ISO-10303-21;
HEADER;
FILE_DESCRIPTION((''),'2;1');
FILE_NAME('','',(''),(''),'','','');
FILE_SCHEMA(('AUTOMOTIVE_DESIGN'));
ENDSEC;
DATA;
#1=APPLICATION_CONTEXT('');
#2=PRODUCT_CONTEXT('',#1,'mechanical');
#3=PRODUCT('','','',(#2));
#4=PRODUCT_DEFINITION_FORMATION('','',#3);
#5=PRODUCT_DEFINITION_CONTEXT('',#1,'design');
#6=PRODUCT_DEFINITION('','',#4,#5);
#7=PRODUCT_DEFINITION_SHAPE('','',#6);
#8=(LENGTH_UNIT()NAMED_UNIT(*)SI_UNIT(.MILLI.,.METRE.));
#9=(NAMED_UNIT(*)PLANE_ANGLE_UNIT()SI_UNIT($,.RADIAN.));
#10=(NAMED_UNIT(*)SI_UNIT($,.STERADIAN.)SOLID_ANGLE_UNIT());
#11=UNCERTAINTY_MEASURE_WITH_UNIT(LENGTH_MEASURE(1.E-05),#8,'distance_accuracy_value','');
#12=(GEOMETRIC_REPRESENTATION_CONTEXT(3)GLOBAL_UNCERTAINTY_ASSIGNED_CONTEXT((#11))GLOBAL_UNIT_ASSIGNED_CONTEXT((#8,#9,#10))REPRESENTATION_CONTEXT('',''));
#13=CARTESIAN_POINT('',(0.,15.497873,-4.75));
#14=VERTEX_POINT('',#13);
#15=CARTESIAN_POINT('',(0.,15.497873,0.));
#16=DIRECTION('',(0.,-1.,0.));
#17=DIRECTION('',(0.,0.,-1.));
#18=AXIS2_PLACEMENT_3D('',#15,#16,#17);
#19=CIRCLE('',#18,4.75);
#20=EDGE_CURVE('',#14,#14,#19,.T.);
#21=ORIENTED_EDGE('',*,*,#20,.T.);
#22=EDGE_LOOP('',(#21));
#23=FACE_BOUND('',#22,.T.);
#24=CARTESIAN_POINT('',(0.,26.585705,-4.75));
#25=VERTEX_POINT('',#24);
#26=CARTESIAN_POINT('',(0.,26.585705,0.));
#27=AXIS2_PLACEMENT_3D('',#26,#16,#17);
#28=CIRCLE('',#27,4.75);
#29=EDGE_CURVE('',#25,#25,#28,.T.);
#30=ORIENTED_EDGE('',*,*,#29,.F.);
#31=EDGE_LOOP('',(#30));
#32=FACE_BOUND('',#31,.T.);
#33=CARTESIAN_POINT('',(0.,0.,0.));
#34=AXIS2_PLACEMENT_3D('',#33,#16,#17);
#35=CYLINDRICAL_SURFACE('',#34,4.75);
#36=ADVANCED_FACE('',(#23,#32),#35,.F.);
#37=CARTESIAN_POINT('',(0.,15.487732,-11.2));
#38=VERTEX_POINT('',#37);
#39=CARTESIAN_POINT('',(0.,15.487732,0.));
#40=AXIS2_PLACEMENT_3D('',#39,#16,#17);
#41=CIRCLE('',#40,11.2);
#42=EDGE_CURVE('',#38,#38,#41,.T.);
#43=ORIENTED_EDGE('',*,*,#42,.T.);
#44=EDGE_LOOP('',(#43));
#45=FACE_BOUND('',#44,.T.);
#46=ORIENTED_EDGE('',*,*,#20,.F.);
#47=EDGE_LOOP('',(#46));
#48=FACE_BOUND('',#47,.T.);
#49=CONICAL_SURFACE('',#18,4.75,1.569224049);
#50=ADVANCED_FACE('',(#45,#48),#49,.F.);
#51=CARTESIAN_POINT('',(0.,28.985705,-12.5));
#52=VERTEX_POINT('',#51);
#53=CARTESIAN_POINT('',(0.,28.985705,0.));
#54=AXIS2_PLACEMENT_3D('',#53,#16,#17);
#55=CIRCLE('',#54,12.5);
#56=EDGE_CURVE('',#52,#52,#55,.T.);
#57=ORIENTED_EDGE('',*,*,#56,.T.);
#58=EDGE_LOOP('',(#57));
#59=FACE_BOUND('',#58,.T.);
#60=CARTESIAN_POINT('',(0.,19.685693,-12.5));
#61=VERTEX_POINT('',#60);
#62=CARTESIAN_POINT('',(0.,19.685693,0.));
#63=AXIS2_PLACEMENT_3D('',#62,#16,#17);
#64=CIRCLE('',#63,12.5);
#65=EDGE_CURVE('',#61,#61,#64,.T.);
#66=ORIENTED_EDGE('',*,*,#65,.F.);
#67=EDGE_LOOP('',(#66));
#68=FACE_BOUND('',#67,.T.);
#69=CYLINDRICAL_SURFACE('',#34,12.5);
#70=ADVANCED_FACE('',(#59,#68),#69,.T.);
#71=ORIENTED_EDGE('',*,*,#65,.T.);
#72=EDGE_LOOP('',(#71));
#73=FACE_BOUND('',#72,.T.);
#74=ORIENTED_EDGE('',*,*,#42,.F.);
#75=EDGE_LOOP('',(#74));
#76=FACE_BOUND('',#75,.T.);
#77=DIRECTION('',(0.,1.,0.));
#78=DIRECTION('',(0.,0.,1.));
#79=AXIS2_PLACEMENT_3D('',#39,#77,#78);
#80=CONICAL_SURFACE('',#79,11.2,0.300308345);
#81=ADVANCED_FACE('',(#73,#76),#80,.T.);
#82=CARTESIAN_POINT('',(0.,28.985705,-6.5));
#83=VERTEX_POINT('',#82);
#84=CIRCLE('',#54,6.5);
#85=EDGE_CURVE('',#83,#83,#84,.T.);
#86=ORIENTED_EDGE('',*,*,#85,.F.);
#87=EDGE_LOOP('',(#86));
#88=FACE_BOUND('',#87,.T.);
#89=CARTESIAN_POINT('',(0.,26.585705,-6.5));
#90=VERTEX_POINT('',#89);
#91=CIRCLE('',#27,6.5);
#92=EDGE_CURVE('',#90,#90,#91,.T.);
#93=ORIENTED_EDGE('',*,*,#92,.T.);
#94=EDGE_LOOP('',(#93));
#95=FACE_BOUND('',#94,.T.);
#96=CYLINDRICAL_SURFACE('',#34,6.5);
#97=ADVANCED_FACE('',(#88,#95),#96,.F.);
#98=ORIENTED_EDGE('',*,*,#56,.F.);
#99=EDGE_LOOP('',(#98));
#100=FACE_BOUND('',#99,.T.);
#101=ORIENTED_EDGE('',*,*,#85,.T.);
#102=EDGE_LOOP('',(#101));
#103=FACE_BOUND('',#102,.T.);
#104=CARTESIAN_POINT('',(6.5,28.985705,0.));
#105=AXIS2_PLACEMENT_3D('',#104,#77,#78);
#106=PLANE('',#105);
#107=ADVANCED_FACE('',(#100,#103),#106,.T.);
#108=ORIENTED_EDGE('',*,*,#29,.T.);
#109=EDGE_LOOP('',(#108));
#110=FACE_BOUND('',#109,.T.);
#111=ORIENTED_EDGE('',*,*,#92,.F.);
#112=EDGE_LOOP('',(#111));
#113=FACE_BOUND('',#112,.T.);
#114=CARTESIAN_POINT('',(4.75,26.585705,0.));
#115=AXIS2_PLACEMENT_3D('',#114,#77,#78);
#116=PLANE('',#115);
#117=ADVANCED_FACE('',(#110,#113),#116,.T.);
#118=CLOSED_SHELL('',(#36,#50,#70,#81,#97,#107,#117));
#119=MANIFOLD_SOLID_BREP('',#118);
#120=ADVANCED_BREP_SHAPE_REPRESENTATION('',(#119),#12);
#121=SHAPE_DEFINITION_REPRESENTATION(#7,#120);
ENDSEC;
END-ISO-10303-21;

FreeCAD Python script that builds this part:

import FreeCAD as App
import Part
import Sketcher

V = App.Vector
Q = App.Units.Quantity

doc = App.newDocument("Part")
params = doc.addObject("Spreadsheet::Sheet", "Params")
for row, (alias, value) in enumerate([
    ("sketch1_width", "6 mm"),
    ("sketch1_height", "2.4 mm"),
    ("sketch1_width2", "1.75 mm"),
    ("revolution_angle", "360 deg"),
], start=1):
    params.set(f"A{row}", alias)
    params.set(f"B{row}", "=" + value)
    params.setAlias(f"B{row}", alias)

body = doc.addObject("PartDesign::Body", "Body")

# Sketch on XY plane
sketch1 = body.newObject("Sketcher::SketchObject", "Sketch")
sketch1.AttachmentSupport = (doc.getObject("XY_Plane"), [""])
sketch1.MapMode = "FlatFace"
sketch1.addGeometry([
    Part.LineSegment(V(4.8, 26.6, 0), V(4.8, 15.5, 0)),  # 0
    Part.LineSegment(V(4.8, 15.5, 0), V(11.2, 15.5, 0)),  # 1
    Part.LineSegment(V(11.2, 15.5, 0), V(12.5, 19.7, 0)),  # 2
    Part.LineSegment(V(12.5, 19.7, 0), V(12.5, 29, 0)),  # 3
    Part.LineSegment(V(12.5, 29, 0), V(6.5, 29, 0)),  # 4
    Part.LineSegment(V(6.5, 29, 0), V(6.5, 26.6, 0)),  # 5
    Part.LineSegment(V(6.5, 26.6, 0), V(4.8, 26.6, 0)),  # 6
], False)
sketch1.addConstraint([
    Sketcher.Constraint("Coincident", 0, 2, 1, 1),
    Sketcher.Constraint("Coincident", 1, 2, 2, 1),
    Sketcher.Constraint("Coincident", 2, 2, 3, 1),
    Sketcher.Constraint("Coincident", 3, 2, 4, 1),
    Sketcher.Constraint("Coincident", 4, 2, 5, 1),
    Sketcher.Constraint("Coincident", 5, 2, 6, 1),
    Sketcher.Constraint("Coincident", 6, 2, 0, 1),
    Sketcher.Constraint("Vertical", 0),
    Sketcher.Constraint("Vertical", 3),
    Sketcher.Constraint("Horizontal", 4),
    Sketcher.Constraint("Vertical", 5),
    Sketcher.Constraint("Horizontal", 6),
    Sketcher.Constraint("DistanceX", 4, 2, 4, 1, Q("6 mm")),
    Sketcher.Constraint("DistanceY", 5, 2, 5, 1, Q("2.4 mm")),
    Sketcher.Constraint("DistanceX", 6, 2, 6, 1, Q("1.75 mm")),
    Sketcher.Constraint("DistanceX", -1, 1, 1, 2, Q("11.2 mm")),
    Sketcher.Constraint("DistanceX", -1, 1, 2, 2, Q("12.5 mm")),
    Sketcher.Constraint("DistanceY", 0, 2, 0, 1, Q("11.087832 mm")),
    Sketcher.Constraint("DistanceY", 3, 1, 3, 2, Q("9.300011 mm")),
    Sketcher.Constraint("DistanceY", -1, 1, 1, 2, Q("15.487732 mm")),
    Sketcher.Constraint("DistanceY", 1, 2, 0, 2, Q("0.010141 mm")),
])
sketch1.setExpression("Constraints[12]", "Params.sketch1_width")
sketch1.setExpression("Constraints[13]", "Params.sketch1_height")
sketch1.setExpression("Constraints[14]", "Params.sketch1_width2")
revolution = body.newObject("PartDesign::Revolution", "Revolution")
revolution.Profile = sketch1
revolution.ReferenceAxis = (sketch1, ["V_Axis"])
revolution.setExpression("Angle", "Params.revolution_angle")

doc.recompute()
